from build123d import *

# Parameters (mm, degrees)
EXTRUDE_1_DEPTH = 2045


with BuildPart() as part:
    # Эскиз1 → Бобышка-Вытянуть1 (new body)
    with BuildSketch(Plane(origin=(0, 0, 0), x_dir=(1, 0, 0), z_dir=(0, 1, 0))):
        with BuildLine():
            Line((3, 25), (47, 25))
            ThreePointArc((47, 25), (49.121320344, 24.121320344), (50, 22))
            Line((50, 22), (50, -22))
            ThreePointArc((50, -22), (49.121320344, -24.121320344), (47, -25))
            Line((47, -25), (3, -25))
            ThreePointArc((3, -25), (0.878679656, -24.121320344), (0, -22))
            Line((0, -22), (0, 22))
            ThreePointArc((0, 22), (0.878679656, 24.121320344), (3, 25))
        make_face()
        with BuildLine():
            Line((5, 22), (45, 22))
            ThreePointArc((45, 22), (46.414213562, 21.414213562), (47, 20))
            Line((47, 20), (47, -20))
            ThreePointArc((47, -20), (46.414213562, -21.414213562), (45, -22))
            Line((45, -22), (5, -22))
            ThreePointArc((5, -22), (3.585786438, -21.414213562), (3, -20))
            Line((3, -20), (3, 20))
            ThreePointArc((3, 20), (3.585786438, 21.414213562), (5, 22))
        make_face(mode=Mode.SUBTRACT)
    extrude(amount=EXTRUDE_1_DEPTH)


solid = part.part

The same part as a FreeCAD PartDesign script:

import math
import FreeCAD as App
import Part
import Sketcher

doc = App.newDocument("Part")
params = doc.addObject("Spreadsheet::Sheet", "Params")
for row, (alias, value) in enumerate([
    ("sketch1_radius", "3 mm"),
    ("sketch1_radius2", "2 mm"),
    ("sketch1_width", "44 mm"),
    ("pad1_length", "2045 mm"),
], start=1):
    params.set(f"A{row}", alias)
    params.set(f"B{row}", "=" + value)
    params.setAlias(f"B{row}", alias)

body = doc.addObject("PartDesign::Body", "Body")

# Sketch on XZ plane
sketch1 = body.newObject("Sketcher::SketchObject", "Sketch")
sketch1.AttachmentSupport = (doc.getObject("XZ_Plane"), [""])
sketch1.MapMode = "FlatFace"
sketch1.addGeometry(Part.LineSegment(App.Vector(47, -25, 0), App.Vector(3, -25, 0)), False)
sketch1.addGeometry(Part.ArcOfCircle(Part.Circle(App.Vector(3, -22, 0), App.Vector(0, 0, 1), 3), math.radians(180), math.radians(270)), False)
sketch1.addGeometry(Part.LineSegment(App.Vector(0, -22, 0), App.Vector(0, 22, 0)), False)
sketch1.addGeometry(Part.ArcOfCircle(Part.Circle(App.Vector(3, 22, 0), App.Vector(0, 0, 1), 3), math.radians(90), math.radians(180)), False)
sketch1.addGeometry(Part.LineSegment(App.Vector(3, 25, 0), App.Vector(47, 25, 0)), False)
sketch1.addGeometry(Part.ArcOfCircle(Part.Circle(App.Vector(47, 22, 0), App.Vector(0, 0, 1), 3), math.radians(0), math.radians(90)), False)
sketch1.addGeometry(Part.LineSegment(App.Vector(50, 22, 0), App.Vector(50, -22, 0)), False)
sketch1.addGeometry(Part.ArcOfCircle(Part.Circle(App.Vector(47, -22, 0), App.Vector(0, 0, 1), 3), math.radians(-90), math.radians(0)), False)
sketch1.addGeometry(Part.LineSegment(App.Vector(5, -22, 0), App.Vector(45, -22, 0)), False)
sketch1.addGeometry(Part.ArcOfCircle(Part.Circle(App.Vector(45, -20, 0), App.Vector(0, 0, 1), 2), math.radians(-90), math.radians(0)), False)
sketch1.addGeometry(Part.LineSegment(App.Vector(47, -20, 0), App.Vector(47, 20, 0)), False)
sketch1.addGeometry(Part.ArcOfCircle(Part.Circle(App.Vector(45, 20, 0), App.Vector(0, 0, 1), 2), math.radians(0), math.radians(90)), False)
sketch1.addGeometry(Part.LineSegment(App.Vector(45, 22, 0), App.Vector(5, 22, 0)), False)
sketch1.addGeometry(Part.ArcOfCircle(Part.Circle(App.Vector(5, 20, 0), App.Vector(0, 0, 1), 2), math.radians(90), math.radians(180)), False)
sketch1.addGeometry(Part.LineSegment(App.Vector(3, 20, 0), App.Vector(3, -20, 0)), False)
sketch1.addGeometry(Part.ArcOfCircle(Part.Circle(App.Vector(5, -20, 0), App.Vector(0, 0, 1), 2), math.radians(-180), math.radians(-90)), False)
sketch1.addConstraint(Sketcher.Constraint("Tangent", 0, 2, 1, 2))
sketch1.addConstraint(Sketcher.Constraint("Tangent", 1, 1, 2, 1))
sketch1.addConstraint(Sketcher.Constraint("Tangent", 2, 2, 3, 2))
sketch1.addConstraint(Sketcher.Constraint("Tangent", 3, 1, 4, 1))
sketch1.addConstraint(Sketcher.Constraint("Tangent", 4, 2, 5, 2))
sketch1.addConstraint(Sketcher.Constraint("Tangent", 5, 1, 6, 1))
sketch1.addConstraint(Sketcher.Constraint("Tangent", 6, 2, 7, 2))
sketch1.addConstraint(Sketcher.Constraint("Tangent", 7, 1, 0, 1))
sketch1.addConstraint(Sketcher.Constraint("Tangent", 8, 2, 9, 1))
sketch1.addConstraint(Sketcher.Constraint("Tangent", 9, 2, 10, 1))
sketch1.addConstraint(Sketcher.Constraint("Tangent", 10, 2, 11, 1))
sketch1.addConstraint(Sketcher.Constraint("Tangent", 11, 2, 12, 1))
sketch1.addConstraint(Sketcher.Constraint("Tangent", 12, 2, 13, 1))
sketch1.addConstraint(Sketcher.Constraint("Tangent", 13, 2, 14, 1))
sketch1.addConstraint(Sketcher.Constraint("Tangent", 14, 2, 15, 1))
sketch1.addConstraint(Sketcher.Constraint("Tangent", 15, 2, 8, 1))
sketch1.addConstraint(Sketcher.Constraint("Horizontal", 0))
sketch1.addConstraint(Sketcher.Constraint("Vertical", 2))
sketch1.addConstraint(Sketcher.Constraint("Horizontal", 4))
sketch1.addConstraint(Sketcher.Constraint("Vertical", 6))
sketch1.addConstraint(Sketcher.Constraint("Horizontal", 8))
sketch1.addConstraint(Sketcher.Constraint("Vertical", 10))
sketch1.addConstraint(Sketcher.Constraint("Horizontal", 12))
sketch1.addConstraint(Sketcher.Constraint("Vertical", 14))
sketch1.addConstraint(Sketcher.Constraint("Equal", 1, 3))
sketch1.addConstraint(Sketcher.Constraint("Equal", 3, 5))
sketch1.addConstraint(Sketcher.Constraint("Equal", 5, 7))
sketch1.addConstraint(Sketcher.Constraint("Equal", 9, 11))
sketch1.addConstraint(Sketcher.Constraint("Equal", 11, 13))
sketch1.addConstraint(Sketcher.Constraint("Equal", 13, 15))
sketch1.addConstraint(Sketcher.Constraint("Symmetric", 1, 1, 2, 2, -1, 1))
sketch1.addConstraint(Sketcher.Constraint("Horizontal", 6, 2, 8, 2))
sketch1.addConstraint(Sketcher.Constraint("Horizontal", 5, 1, 11, 2))
sketch1.addConstraint(Sketcher.Constraint("Vertical", 7, 1, 9, 2))
sketch1.addConstraint(Sketcher.Constraint("Vertical", 3, 1, 13, 2))
sketch1.addConstraint(Sketcher.Constraint("Equal", 4, 2))
sketch1.addConstraint(Sketcher.Constraint("Radius", 1, 3.0))
sketch1.addConstraint(Sketcher.Constraint("Radius", 9, 2.0))
sketch1.addConstraint(Sketcher.Constraint("DistanceX", 0, 2, 0, 1, 44.0))
sketch1.setExpression("Constraints[36]", "Params.sketch1_radius")
sketch1.setExpression("Constraints[37]", "Params.sketch1_radius2")
sketch1.setExpression("Constraints[38]", "Params.sketch1_width")
pad1 = body.newObject("PartDesign::Pad", "Pad")
pad1.Profile = sketch1
pad1.setExpression("Length", "Params.pad1_length")
pad1.Reversed = True

doc.recompute()
